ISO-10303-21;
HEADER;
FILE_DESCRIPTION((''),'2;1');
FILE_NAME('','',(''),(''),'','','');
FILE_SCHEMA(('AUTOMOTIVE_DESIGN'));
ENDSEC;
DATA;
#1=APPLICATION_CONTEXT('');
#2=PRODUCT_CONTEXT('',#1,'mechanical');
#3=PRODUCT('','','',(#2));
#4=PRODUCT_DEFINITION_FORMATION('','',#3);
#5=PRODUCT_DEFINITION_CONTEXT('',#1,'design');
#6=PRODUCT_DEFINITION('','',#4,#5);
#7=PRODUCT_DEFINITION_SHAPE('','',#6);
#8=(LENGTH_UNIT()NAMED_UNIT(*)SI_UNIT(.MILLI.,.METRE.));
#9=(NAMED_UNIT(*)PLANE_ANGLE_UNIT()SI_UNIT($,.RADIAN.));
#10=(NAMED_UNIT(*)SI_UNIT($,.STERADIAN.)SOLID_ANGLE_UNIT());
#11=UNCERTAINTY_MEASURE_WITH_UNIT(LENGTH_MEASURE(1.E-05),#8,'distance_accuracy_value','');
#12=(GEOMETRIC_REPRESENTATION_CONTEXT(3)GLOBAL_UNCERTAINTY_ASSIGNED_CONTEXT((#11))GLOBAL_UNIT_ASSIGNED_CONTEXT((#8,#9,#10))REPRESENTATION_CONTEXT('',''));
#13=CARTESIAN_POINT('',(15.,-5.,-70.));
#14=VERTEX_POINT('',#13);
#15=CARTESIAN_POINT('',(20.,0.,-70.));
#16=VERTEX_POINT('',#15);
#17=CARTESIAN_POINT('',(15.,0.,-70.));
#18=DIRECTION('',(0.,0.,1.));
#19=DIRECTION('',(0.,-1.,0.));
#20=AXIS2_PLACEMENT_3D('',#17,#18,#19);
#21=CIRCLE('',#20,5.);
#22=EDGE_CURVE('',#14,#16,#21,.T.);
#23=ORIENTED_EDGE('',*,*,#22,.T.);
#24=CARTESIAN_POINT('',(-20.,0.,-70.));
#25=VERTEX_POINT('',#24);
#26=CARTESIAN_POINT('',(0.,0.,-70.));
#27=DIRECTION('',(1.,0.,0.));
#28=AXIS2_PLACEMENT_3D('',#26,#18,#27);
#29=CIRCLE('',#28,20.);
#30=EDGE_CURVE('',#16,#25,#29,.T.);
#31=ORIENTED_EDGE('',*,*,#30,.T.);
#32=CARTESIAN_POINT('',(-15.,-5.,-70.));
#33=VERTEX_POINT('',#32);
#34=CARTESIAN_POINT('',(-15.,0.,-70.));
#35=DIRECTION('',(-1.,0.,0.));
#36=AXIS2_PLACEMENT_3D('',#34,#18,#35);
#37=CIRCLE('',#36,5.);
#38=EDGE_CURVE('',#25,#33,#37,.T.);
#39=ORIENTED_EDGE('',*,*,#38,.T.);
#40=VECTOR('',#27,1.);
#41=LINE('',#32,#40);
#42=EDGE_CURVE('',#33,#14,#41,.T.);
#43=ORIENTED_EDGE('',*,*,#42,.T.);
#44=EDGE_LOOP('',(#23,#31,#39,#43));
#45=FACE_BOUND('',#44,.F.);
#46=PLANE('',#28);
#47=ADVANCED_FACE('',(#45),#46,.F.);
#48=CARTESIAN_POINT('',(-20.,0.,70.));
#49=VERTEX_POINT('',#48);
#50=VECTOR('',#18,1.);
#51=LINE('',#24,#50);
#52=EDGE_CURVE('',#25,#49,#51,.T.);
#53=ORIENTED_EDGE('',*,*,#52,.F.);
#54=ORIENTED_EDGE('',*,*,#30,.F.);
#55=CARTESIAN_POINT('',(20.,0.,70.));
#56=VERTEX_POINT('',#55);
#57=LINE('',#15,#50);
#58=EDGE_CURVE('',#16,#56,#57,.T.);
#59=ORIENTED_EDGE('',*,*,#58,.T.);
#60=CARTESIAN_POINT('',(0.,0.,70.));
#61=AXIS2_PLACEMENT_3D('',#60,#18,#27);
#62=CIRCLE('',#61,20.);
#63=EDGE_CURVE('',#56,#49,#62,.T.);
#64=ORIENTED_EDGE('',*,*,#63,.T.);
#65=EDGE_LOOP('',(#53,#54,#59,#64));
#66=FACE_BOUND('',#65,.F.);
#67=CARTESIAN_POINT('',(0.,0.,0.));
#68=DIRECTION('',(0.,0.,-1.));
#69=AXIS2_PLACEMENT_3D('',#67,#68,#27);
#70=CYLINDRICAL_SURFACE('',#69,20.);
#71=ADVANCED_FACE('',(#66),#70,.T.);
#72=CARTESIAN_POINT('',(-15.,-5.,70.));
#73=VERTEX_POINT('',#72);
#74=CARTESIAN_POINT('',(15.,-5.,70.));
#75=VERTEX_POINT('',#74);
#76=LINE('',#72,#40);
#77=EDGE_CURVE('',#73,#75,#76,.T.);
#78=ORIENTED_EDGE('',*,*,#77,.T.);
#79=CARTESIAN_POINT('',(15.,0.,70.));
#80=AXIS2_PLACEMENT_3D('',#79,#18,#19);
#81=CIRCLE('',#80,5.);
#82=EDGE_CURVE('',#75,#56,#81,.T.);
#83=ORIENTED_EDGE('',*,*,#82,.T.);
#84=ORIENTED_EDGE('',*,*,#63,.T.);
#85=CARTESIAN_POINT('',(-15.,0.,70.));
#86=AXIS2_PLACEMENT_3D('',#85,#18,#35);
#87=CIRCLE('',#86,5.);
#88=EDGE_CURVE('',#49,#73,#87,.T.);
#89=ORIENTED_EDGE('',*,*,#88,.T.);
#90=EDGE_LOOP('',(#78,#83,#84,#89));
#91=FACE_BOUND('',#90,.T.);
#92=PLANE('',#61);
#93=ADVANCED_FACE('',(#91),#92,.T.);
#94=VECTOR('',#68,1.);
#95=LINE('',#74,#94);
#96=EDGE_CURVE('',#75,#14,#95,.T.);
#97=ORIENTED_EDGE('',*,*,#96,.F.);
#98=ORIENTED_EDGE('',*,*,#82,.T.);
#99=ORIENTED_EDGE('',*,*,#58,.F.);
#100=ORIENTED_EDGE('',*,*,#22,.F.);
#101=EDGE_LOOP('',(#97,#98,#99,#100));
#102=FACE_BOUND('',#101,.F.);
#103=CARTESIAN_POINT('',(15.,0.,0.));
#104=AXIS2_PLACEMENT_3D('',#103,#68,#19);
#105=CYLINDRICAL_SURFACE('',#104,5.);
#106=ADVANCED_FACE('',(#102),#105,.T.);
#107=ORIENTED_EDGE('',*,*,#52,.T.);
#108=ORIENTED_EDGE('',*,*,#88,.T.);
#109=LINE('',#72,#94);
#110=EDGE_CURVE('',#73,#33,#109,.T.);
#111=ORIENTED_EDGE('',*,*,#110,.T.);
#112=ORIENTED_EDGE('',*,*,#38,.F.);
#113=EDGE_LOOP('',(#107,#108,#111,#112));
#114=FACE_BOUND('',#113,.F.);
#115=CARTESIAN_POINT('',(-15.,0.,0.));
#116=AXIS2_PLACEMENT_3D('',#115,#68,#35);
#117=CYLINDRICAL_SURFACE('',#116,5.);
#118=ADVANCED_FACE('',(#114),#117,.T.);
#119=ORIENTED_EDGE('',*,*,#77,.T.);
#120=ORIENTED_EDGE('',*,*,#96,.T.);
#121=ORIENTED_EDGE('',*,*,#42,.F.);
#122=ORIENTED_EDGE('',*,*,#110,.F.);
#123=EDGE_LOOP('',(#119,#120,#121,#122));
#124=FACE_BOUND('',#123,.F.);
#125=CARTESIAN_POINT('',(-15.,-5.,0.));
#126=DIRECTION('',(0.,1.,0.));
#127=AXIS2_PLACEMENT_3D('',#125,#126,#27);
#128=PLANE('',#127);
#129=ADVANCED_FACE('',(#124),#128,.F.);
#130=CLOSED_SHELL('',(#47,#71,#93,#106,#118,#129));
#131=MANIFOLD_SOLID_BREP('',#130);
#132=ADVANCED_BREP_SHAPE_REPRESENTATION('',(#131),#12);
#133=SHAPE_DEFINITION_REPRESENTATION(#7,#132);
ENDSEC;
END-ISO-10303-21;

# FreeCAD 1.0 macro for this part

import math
import FreeCAD as App
import Part
import Sketcher

V = App.Vector

doc = App.newDocument("Part")
body = doc.addObject("PartDesign::Body", "Body")

sketch1 = body.newObject("Sketcher::SketchObject", "Sketch")
sketch1.AttachmentSupport = (doc.getObject("XY_Plane"), [""])
sketch1.MapMode = "FlatFace"
sketch1.addGeometry([
    Part.ArcOfCircle(Part.Circle(V(15, 0, 0), V(0, 0, 1), 5), math.radians(-90), math.radians(0)),
    Part.ArcOfCircle(Part.Circle(V(0, 0, 0), V(0, 0, 1), 20), math.radians(0), math.radians(180)),
    Part.ArcOfCircle(Part.Circle(V(-15, 0, 0), V(0, 0, 1), 5), math.radians(180), math.radians(270)),
    Part.LineSegment(V(-15, -5, 0), V(15, -5, 0)),
], False)
sketch1.addConstraint([
    Sketcher.Constraint("Tangent", 0, 2, 1, 1),
    Sketcher.Constraint("Tangent", 1, 2, 2, 1),
    Sketcher.Constraint("Tangent", 2, 2, 3, 1),
    Sketcher.Constraint("Tangent", 3, 2, 0, 1),
    Sketcher.Constraint("Horizontal", 3),
    Sketcher.Constraint("Coincident", 1, 3, -1, 1),
    Sketcher.Constraint("Equal", 0, 2),
    Sketcher.Constraint("PointOnObject", 0, 3, -1),
    Sketcher.Constraint("Radius", 0, 5.0),
    Sketcher.Constraint("Radius", 1, 20.0),
])
pad1 = body.newObject("PartDesign::Pad", "Pad")
pad1.Profile = sketch1
pad1.Length = 140
pad1.Midplane = True

doc.recompute()
